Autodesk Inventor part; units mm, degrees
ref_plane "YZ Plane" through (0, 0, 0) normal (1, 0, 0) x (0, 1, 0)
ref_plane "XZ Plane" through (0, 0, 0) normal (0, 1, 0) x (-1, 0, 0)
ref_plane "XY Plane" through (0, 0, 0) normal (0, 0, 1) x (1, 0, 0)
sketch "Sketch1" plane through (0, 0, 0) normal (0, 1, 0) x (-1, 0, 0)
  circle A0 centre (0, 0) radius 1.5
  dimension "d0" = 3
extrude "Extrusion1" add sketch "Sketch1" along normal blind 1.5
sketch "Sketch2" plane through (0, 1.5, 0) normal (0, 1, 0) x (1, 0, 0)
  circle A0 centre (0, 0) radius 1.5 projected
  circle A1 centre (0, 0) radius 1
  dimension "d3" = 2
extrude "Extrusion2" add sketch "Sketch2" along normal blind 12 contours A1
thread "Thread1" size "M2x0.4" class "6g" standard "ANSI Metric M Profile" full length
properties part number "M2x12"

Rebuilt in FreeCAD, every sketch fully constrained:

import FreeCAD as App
import Part
import Sketcher
from FreeCAD import Vector
Q = App.Units.Quantity

doc = App.newDocument("Part")
body = doc.addObject("PartDesign::Body", "Body")

sketch1 = body.newObject("Sketcher::SketchObject", "Sketch")
sketch1.AttachmentSupport = (doc.getObject("XZ_Plane"), [""])
sketch1.MapMode = "FlatFace"
sketch1.addGeometry(Part.Circle(Vector(0, 0, 0), Vector(0, 0, 1), 1.5), False)
sketch1.addConstraint([
    Sketcher.Constraint("Coincident", 0, 3, -1, 1),
    Sketcher.Constraint("Diameter", 0, Q("3 mm")),
])
pad1 = body.newObject("PartDesign::Pad", "Pad")
pad1.Profile = sketch1
pad1.Length = 1.5
pad1.Reversed = True

sketch2 = body.newObject("Sketcher::SketchObject", "Sketch001")
sketch2.AttachmentSupport = (doc.getObject("XZ_Plane"), [""])
sketch2.MapMode = "FlatFace"
sketch2.AttachmentOffset = App.Placement(Vector(0, 0, -1.5), App.Rotation())
sketch2.addGeometry(Part.Circle(Vector(0, 0, 0), Vector(0, 0, 1), 1), False)
sketch2.addConstraint([
    Sketcher.Constraint("Coincident", 0, 3, -1, 1),
    Sketcher.Constraint("Diameter", 0, Q("2 mm")),
])
pad2 = body.newObject("PartDesign::Pad", "Pad001")
pad2.Profile = sketch2
pad2.Length = 12
pad2.Reversed = True

doc.recompute()
